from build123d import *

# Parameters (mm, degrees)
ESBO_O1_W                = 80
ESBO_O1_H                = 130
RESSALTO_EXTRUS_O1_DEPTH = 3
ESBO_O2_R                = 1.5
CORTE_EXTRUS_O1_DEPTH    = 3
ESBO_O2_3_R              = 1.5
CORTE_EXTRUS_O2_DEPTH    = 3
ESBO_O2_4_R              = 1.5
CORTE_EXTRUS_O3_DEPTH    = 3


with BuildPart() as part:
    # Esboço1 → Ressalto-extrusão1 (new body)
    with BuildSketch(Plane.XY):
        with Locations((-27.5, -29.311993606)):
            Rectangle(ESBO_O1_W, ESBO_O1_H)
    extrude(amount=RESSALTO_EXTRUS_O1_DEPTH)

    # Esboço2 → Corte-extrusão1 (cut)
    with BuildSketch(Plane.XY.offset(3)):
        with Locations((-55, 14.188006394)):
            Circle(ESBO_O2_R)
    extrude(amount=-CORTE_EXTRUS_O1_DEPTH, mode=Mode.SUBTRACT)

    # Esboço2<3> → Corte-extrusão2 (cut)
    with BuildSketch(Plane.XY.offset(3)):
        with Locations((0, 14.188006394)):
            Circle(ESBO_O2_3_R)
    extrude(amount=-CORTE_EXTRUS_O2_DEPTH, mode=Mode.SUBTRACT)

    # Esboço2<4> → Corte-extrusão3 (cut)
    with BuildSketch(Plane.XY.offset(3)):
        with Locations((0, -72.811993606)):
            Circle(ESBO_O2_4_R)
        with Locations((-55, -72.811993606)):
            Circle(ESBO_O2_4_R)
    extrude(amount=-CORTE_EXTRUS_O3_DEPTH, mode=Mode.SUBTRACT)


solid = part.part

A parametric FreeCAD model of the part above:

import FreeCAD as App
import Part
import Sketcher

V = App.Vector


def add_polygon(sketch, points):
    """Adds a closed chain of lines whose ends are joined by coincident constraints."""
    first, n = sketch.GeometryCount, len(points)
    for a, b in zip(points, points[1:] + points[:1]):
        sketch.addGeometry(Part.LineSegment(App.Vector(*a, 0), App.Vector(*b, 0)), False)
    for i in range(n):
        sketch.addConstraint(Sketcher.Constraint("Coincident", first + i, 2, first + (i + 1) % n, 1))

doc = App.newDocument("Part")
body = doc.addObject("PartDesign::Body", "Body")

# Sketch on XY plane
sketch1 = doc.addObject("Sketcher::SketchObject", "Sketch")
body.addObject(sketch1)
sketch1.AttachmentSupport = (doc.XY_Plane, [""])
sketch1.MapMode = "FlatFace"
add_polygon(sketch1, [(-67.5, 35.688006), (-67.5, -94.311994), (12.5, -94.311994), (12.5, 35.688006)])  # lines 0-3
sketch1.addConstraint([
    Sketcher.Constraint("Vertical", 0),
    Sketcher.Constraint("Horizontal", 1),
    Sketcher.Constraint("Vertical", 2),
    Sketcher.Constraint("Horizontal", 3),
    Sketcher.Constraint("DistanceX", 1, 1, 1, 2, 80.0),
    Sketcher.Constraint("DistanceY", 0, 2, 0, 1, 130.0),
    Sketcher.Constraint("DistanceX", 0, 2, -1, 1, 67.5),
    Sketcher.Constraint("DistanceY", 0, 2, -1, 1, 94.311994),
])
pad1 = doc.addObject("PartDesign::Pad", "Pad")
body.addObject(pad1)
pad1.Profile = sketch1
pad1.Length = 3

# Sketch on XY plane
sketch2 = doc.addObject("Sketcher::SketchObject", "Sketch001")
body.addObject(sketch2)
sketch2.AttachmentSupport = (doc.XY_Plane, [""])
sketch2.MapMode = "FlatFace"
sketch2.AttachmentOffset = App.Placement(V(0, 0, 3), App.Rotation())
sketch2.addGeometry(Part.Circle(V(-55, 14.188006, 0), V(0, 0, 1), 1.5), False)
sketch2.addConstraint([
    Sketcher.Constraint("Diameter", 0, 3.0),
    Sketcher.Constraint("DistanceX", 0, 3, -1, 1, 55.0),
    Sketcher.Constraint("DistanceY", -1, 1, 0, 3, 14.188006),
])
pocket1 = doc.addObject("PartDesign::Pocket", "Pocket")
body.addObject(pocket1)
pocket1.Profile = sketch2
pocket1.Length = 3

# Sketch on XY plane
sketch3 = doc.addObject("Sketcher::SketchObject", "Sketch002")
body.addObject(sketch3)
sketch3.AttachmentSupport = (doc.XY_Plane, [""])
sketch3.MapMode = "FlatFace"
sketch3.AttachmentOffset = App.Placement(V(0, 0, 3), App.Rotation())
sketch3.addGeometry(Part.Circle(V(0, 14.188006, 0), V(0, 0, 1), 1.5), False)
sketch3.addConstraint([
    Sketcher.Constraint("PointOnObject", 0, 3, -2),
    Sketcher.Constraint("Diameter", 0, 3.0),
    Sketcher.Constraint("DistanceY", -1, 1, 0, 3, 14.188006),
])
pocket2 = doc.addObject("PartDesign::Pocket", "Pocket001")
body.addObject(pocket2)
pocket2.Profile = sketch3
pocket2.Length = 3

# Sketch on XY plane
sketch4 = doc.addObject("Sketcher::SketchObject", "Sketch003")
body.addObject(sketch4)
sketch4.AttachmentSupport = (doc.XY_Plane, [""])
sketch4.MapMode = "FlatFace"
sketch4.AttachmentOffset = App.Placement(V(0, 0, 3), App.Rotation())
sketch4.addGeometry([
    Part.Circle(V(0, -72.811994, 0), V(0, 0, 1), 1.5),
    Part.Circle(V(-55, -72.811994, 0), V(0, 0, 1), 1.5),
], False)
sketch4.addConstraint([
    Sketcher.Constraint("Equal", 0, 1),
    Sketcher.Constraint("PointOnObject", 0, 3, -2),
    Sketcher.Constraint("Horizontal", 0, 3, 1, 3),
    Sketcher.Constraint("Diameter", 0, 3.0),
    Sketcher.Constraint("DistanceX", 1, 3, -1, 1, 55.0),
    Sketcher.Constraint("DistanceY", 0, 3, -1, 1, 72.811994),
])
pocket3 = doc.addObject("PartDesign::Pocket", "Pocket002")
body.addObject(pocket3)
pocket3.Profile = sketch4
pocket3.Length = 3

doc.recompute()
